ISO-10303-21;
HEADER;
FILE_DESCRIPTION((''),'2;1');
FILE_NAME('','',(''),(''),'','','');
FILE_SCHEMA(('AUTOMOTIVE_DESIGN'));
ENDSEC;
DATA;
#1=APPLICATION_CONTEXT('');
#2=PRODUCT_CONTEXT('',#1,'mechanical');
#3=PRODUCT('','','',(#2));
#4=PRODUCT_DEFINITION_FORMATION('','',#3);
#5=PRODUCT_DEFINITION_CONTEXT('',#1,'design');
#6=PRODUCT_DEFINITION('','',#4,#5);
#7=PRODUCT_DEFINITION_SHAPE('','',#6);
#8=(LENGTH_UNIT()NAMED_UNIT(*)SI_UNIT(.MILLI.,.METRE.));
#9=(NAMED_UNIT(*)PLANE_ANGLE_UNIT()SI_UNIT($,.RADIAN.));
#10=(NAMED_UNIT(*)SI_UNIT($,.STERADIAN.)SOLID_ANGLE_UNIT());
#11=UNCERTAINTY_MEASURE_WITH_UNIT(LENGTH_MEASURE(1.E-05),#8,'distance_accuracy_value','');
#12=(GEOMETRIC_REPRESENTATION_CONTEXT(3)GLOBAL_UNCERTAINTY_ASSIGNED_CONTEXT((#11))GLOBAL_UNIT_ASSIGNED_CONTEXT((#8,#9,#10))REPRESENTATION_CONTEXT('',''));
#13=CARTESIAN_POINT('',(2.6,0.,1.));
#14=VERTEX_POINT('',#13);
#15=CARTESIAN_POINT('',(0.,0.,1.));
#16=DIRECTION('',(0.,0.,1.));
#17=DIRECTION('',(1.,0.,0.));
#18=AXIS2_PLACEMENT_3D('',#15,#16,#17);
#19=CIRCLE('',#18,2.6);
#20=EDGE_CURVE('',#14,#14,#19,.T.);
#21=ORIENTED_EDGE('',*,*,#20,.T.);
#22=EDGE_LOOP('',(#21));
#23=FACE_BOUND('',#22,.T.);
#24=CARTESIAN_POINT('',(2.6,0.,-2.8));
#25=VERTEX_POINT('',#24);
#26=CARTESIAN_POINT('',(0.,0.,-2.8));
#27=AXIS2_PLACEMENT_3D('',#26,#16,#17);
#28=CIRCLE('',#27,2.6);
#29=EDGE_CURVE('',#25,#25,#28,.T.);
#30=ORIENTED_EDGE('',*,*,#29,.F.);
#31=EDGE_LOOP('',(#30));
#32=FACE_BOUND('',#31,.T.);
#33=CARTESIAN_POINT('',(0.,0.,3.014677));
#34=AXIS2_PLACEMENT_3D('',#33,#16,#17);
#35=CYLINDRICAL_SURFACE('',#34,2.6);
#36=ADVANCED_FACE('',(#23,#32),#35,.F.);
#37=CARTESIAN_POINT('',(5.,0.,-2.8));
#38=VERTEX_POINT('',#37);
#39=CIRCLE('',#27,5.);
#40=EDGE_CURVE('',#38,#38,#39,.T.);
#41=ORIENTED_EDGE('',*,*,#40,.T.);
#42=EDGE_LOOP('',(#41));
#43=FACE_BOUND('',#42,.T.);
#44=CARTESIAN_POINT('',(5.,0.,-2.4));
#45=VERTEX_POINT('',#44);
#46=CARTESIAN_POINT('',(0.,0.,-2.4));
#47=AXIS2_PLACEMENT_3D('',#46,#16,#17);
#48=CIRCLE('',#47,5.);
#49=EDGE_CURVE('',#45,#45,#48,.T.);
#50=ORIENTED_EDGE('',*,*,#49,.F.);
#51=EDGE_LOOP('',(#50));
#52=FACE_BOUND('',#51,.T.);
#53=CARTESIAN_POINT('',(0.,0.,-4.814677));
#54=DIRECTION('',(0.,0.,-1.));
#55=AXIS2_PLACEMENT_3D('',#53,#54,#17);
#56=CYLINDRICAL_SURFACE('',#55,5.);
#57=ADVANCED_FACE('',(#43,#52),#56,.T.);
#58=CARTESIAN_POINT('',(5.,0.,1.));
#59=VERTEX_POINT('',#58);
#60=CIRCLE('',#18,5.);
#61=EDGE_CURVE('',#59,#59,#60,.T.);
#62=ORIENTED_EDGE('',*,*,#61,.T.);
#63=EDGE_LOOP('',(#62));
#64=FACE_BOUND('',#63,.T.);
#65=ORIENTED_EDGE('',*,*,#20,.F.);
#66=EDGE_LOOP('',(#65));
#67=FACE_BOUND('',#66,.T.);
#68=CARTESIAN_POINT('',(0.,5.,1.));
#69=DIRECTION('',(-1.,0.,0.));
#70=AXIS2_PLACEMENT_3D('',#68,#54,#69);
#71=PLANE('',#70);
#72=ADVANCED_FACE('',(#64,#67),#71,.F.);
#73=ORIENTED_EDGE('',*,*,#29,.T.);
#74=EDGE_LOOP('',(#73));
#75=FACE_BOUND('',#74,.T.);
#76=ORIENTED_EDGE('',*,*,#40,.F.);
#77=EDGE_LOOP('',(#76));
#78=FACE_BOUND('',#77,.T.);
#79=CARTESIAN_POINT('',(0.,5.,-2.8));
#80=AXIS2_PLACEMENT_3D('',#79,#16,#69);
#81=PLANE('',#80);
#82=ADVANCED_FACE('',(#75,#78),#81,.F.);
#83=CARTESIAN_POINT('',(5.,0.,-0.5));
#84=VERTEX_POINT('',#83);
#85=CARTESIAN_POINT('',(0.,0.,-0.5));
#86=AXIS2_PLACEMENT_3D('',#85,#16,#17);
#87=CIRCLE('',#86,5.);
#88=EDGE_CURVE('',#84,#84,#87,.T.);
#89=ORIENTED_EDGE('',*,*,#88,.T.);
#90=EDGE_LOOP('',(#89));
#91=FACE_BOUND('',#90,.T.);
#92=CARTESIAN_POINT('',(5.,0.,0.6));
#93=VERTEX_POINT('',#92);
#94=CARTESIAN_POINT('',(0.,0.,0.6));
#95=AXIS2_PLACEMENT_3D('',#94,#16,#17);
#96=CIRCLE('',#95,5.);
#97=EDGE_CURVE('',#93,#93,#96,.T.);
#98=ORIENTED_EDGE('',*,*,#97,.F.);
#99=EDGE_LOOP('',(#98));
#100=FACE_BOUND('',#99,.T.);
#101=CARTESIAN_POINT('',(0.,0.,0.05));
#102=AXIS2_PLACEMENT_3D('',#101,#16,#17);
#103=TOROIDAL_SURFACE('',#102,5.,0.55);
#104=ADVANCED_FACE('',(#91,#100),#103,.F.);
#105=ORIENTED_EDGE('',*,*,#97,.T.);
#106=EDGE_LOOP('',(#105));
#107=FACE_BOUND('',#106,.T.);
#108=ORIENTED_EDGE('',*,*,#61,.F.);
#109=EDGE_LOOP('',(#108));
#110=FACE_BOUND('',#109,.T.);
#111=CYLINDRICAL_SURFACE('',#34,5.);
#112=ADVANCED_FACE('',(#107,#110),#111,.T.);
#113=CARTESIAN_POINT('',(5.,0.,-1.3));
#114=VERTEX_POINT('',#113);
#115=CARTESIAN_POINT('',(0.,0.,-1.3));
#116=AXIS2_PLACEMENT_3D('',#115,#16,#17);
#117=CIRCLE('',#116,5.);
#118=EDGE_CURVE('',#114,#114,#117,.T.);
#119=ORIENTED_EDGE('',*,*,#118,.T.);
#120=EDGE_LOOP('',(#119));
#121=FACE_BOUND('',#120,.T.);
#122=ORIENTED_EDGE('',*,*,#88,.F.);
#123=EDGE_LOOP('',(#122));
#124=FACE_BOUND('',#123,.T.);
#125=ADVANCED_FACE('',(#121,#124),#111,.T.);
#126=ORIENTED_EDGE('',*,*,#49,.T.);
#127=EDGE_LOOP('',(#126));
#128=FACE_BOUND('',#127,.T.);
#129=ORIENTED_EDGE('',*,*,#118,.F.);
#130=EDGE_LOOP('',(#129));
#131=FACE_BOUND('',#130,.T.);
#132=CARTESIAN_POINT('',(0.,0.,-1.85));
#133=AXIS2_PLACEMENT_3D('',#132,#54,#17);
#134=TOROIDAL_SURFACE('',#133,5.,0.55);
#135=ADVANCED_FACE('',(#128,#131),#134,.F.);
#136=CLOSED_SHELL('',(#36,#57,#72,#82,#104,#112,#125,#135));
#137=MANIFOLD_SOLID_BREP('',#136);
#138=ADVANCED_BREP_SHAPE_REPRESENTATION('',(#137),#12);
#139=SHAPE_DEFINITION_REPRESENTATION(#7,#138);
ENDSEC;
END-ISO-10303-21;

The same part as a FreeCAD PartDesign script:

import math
import FreeCAD as App
import Part
import Sketcher

V = App.Vector
Q = App.Units.Quantity

doc = App.newDocument("Part")
body = doc.addObject("PartDesign::Body", "Body")

sketch1 = doc.addObject("Sketcher::SketchObject", "Sketch")
body.addObject(sketch1)
sketch1.AttachmentSupport = (doc.YZ_Plane, [""])
sketch1.MapMode = "FlatFace"
sketch1.addGeometry(Part.LineSegment(V(2.6, -0.9, 0), V(5, -0.9, 0)), False)
sketch1.addGeometry(Part.LineSegment(V(5, -0.9, 0), V(5, -0.5, 0)), False)
sketch1.addGeometry(Part.ArcOfCircle(Part.Circle(V(5, 0.05, 0), V(0, 0, 1), 0.55), math.radians(90), math.radians(270)), False)
sketch1.addGeometry(Part.LineSegment(V(5, 0.6, 0), V(5, 1, 0)), False)
sketch1.addGeometry(Part.LineSegment(V(5, 1, 0), V(2.6, 1, 0)), False)
sketch1.addGeometry(Part.LineSegment(V(2.6, 1, 0), V(2.6, -0.9, 0)), False)
sketch1.addConstraint(Sketcher.Constraint("Coincident", 0, 2, 1, 1))
sketch1.addConstraint(Sketcher.Constraint("Coincident", 1, 2, 2, 2))
sketch1.addConstraint(Sketcher.Constraint("Coincident", 2, 1, 3, 1))
sketch1.addConstraint(Sketcher.Constraint("Coincident", 3, 2, 4, 1))
sketch1.addConstraint(Sketcher.Constraint("Coincident", 4, 2, 5, 1))
sketch1.addConstraint(Sketcher.Constraint("Coincident", 5, 2, 0, 1))
sketch1.addConstraint(Sketcher.Constraint("Horizontal", 0))
sketch1.addConstraint(Sketcher.Constraint("Vertical", 1))
sketch1.addConstraint(Sketcher.Constraint("Vertical", 3))
sketch1.addConstraint(Sketcher.Constraint("Horizontal", 4))
sketch1.addConstraint(Sketcher.Constraint("Vertical", 5))
sketch1.addConstraint(Sketcher.Constraint("Vertical", 2, 3, 0, 2))
sketch1.addConstraint(Sketcher.Constraint("Vertical", 1, 2, 2, 1))
sketch1.addConstraint(Sketcher.Constraint("Equal", 1, 3))
sketch1.addConstraint(Sketcher.Constraint("Radius", 2, Q("0.55 mm")))
sketch1.addConstraint(Sketcher.Constraint("DistanceX", 0, 1, 0, 2, Q("2.4 mm")))
sketch1.addConstraint(Sketcher.Constraint("DistanceY", 1, 1, 1, 2, Q("0.4 mm")))
sketch1.addConstraint(Sketcher.Constraint("DistanceX", -1, 1, 2, 3, Q("5 mm")))
sketch1.addConstraint(Sketcher.Constraint("DistanceY", -1, 1, 3, 2, Q("1 mm")))
revolution = doc.addObject("PartDesign::Revolution", "Revolution")
body.addObject(revolution)
revolution.Profile = sketch1
revolution.ReferenceAxis = (sketch1, ["V_Axis"])
revolution.Angle = 360
doc.recompute()

datumplane = doc.addObject("PartDesign::Plane", "DatumPlane")
body.addObject(datumplane)
datumplane.AttachmentSupport = (doc.XY_Plane, [""])
datumplane.MapMode = "FlatFace"
datumplane.AttachmentOffset = App.Placement(V(0, 0, -0.9), App.Rotation())
mirrored = doc.addObject("PartDesign::Mirrored", "Mirrored")
body.addObject(mirrored)
mirrored.Originals = [revolution]
mirrored.MirrorPlane = (datumplane, [""])
body.Tip = mirrored

doc.recompute()
